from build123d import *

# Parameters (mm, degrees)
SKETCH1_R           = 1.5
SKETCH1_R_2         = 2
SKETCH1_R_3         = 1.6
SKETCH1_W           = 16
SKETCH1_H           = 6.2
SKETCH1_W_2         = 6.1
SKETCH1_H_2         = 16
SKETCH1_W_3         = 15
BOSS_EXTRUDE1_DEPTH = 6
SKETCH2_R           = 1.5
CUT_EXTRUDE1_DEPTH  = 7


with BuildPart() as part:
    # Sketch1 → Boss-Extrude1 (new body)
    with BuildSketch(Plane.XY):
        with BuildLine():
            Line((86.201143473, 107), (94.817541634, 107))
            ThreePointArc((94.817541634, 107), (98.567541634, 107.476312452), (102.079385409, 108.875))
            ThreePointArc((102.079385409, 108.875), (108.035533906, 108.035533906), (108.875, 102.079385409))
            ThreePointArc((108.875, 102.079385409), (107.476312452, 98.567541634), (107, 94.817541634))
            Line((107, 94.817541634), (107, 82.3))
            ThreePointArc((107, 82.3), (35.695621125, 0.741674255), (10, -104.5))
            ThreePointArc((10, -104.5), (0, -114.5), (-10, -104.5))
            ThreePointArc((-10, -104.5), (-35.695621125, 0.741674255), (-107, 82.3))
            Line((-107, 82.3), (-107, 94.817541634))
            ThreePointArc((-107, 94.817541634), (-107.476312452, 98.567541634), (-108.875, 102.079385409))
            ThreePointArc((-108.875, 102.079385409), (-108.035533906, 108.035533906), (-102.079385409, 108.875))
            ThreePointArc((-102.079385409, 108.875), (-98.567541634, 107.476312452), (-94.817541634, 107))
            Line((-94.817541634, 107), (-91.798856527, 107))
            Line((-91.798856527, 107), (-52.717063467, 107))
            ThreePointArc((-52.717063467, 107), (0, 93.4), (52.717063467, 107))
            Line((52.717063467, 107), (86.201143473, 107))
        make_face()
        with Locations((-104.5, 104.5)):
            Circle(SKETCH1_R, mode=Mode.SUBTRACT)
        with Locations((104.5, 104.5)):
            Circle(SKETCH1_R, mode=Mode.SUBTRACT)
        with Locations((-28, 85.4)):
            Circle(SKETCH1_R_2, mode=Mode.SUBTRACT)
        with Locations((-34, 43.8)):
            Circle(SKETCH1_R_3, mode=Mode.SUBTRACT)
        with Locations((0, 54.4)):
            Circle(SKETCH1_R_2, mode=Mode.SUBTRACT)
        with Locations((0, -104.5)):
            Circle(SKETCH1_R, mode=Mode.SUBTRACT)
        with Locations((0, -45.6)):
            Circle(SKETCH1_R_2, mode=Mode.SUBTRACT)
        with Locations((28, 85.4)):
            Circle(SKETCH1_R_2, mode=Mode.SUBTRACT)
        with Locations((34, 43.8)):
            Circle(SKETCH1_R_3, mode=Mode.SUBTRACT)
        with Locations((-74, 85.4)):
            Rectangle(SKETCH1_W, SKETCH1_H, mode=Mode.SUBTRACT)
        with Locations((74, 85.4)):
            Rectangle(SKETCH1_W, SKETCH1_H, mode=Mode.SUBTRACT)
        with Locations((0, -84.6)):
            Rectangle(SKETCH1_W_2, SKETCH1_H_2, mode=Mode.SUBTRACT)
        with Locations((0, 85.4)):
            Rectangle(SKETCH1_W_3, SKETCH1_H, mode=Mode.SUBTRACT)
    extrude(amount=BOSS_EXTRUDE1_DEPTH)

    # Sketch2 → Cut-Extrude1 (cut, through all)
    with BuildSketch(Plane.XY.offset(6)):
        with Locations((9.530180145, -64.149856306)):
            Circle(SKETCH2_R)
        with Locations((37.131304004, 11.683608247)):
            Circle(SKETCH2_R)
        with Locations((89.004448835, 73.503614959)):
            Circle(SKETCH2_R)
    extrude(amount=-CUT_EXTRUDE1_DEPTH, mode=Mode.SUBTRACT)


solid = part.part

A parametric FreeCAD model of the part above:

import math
import FreeCAD as App
import Part
import Sketcher

V = App.Vector

doc = App.newDocument("Part")
params = doc.addObject("Spreadsheet::Sheet", "Params")
for row, (alias, value) in enumerate([
    ("sketch1_diameter", "3 mm"),
    ("sketch1_diameter2", "4 mm"),
    ("sketch1_radius", "15 mm"),
    ("sketch1_radius2", "5 mm"),
    ("sketch1_radius3", "10 mm"),
    ("pad1_length", "6 mm"),
    ("sketch2_diameter", "3 mm"),
], start=1):
    params.set(f"A{row}", alias)
    params.set(f"B{row}", "=" + value)
    params.setAlias(f"B{row}", alias)

body = doc.addObject("PartDesign::Body", "Body")

sketch1 = body.newObject("Sketcher::SketchObject", "Sketch")
sketch1.AttachmentSupport = (doc.getObject("XY_Plane"), [""])
sketch1.MapMode = "FlatFace"
sketch1.addGeometry(Part.ArcOfCircle(Part.Circle(V(94.817542, 122, 0), V(0, 0, 1), 15), math.radians(-90), math.radians(-61.044976)), False)
sketch1.addGeometry(Part.LineSegment(V(94.817542, 107, 0), V(52.717063, 107, 0)), False)
sketch1.addGeometry(Part.ArcOfCircle(Part.Circle(V(0, 202.372382, 0), V(0, 0, 1), 108.972382), math.radians(-118.931614), math.radians(-61.068386)), False)
sketch1.addGeometry(Part.LineSegment(V(-52.717063, 107, 0), V(-94.817542, 107, 0)), False)
sketch1.addGeometry(Part.ArcOfCircle(Part.Circle(V(-94.817542, 122, 0), V(0, 0, 1), 15), math.radians(-118.955024), math.radians(-90)), False)
sketch1.addGeometry(Part.ArcOfCircle(Part.Circle(V(-104.5, 104.5, 0), V(0, 0, 1), 5), math.radians(61.044976), math.radians(208.955024)), False)
sketch1.addGeometry(Part.ArcOfCircle(Part.Circle(V(-122, 94.817542, 0), V(0, 0, 1), 15), math.radians(0), math.radians(28.955024)), False)
sketch1.addGeometry(Part.LineSegment(V(-107, 94.817542, 0), V(-107, 82.3, 0)), False)
sketch1.addGeometry(Part.ArcOfCircle(Part.Circle(V(-238.367216, -104.5, 0), V(0, 0, 1), 228.367216), math.radians(0), math.radians(54.883173)), False)
sketch1.addGeometry(Part.ArcOfCircle(Part.Circle(V(0, -104.5, 0), V(0, 0, 1), 10), math.radians(180), math.radians(360)), False)
sketch1.addGeometry(Part.ArcOfCircle(Part.Circle(V(238.367216, -104.5, 0), V(0, 0, 1), 228.367216), math.radians(125.116827), math.radians(180)), False)
sketch1.addGeometry(Part.LineSegment(V(107, 82.3, 0), V(107, 94.817542, 0)), False)
sketch1.addGeometry(Part.ArcOfCircle(Part.Circle(V(122, 94.817542, 0), V(0, 0, 1), 15), math.radians(151.044976), math.radians(180)), False)
sketch1.addGeometry(Part.ArcOfCircle(Part.Circle(V(104.5, 104.5, 0), V(0, 0, 1), 5), math.radians(-28.955024), math.radians(118.955024)), False)
sketch1.addGeometry(Part.Circle(V(0, -104.5, 0), V(0, 0, 1), 1.5), False)
sketch1.addGeometry(Part.LineSegment(V(-3.05, -92.6, 0), V(-3.05, -76.6, 0)), False)
sketch1.addGeometry(Part.LineSegment(V(-3.05, -76.6, 0), V(3.05, -76.6, 0)), False)
sketch1.addGeometry(Part.LineSegment(V(3.05, -76.6, 0), V(3.05, -92.6, 0)), False)
sketch1.addGeometry(Part.LineSegment(V(3.05, -92.6, 0), V(-3.05, -92.6, 0)), False)
sketch1.addGeometry(Part.Circle(V(0, -45.6, 0), V(0, 0, 1), 2), False)
sketch1.addGeometry(Part.Circle(V(34, 43.8, 0), V(0, 0, 1), 1.6), False)
sketch1.addGeometry(Part.Circle(V(104.5, 104.5, 0), V(0, 0, 1), 1.5), False)
sketch1.addGeometry(Part.LineSegment(V(66, 82.3, 0), V(66, 88.5, 0)), False)
sketch1.addGeometry(Part.LineSegment(V(66, 88.5, 0), V(82, 88.5, 0)), False)
sketch1.addGeometry(Part.LineSegment(V(82, 88.5, 0), V(82, 82.3, 0)), False)
sketch1.addGeometry(Part.LineSegment(V(82, 82.3, 0), V(66, 82.3, 0)), False)
sketch1.addGeometry(Part.Circle(V(28, 85.4, 0), V(0, 0, 1), 2), False)
sketch1.addGeometry(Part.Circle(V(-34, 43.8, 0), V(0, 0, 1), 1.6), False)
sketch1.addGeometry(Part.Circle(V(0, 54.4, 0), V(0, 0, 1), 2), False)
sketch1.addGeometry(Part.LineSegment(V(-7.5, 82.3, 0), V(-7.5, 88.5, 0)), False)
sketch1.addGeometry(Part.LineSegment(V(-7.5, 88.5, 0), V(7.5, 88.5, 0)), False)
sketch1.addGeometry(Part.LineSegment(V(7.5, 88.5, 0), V(7.5, 82.3, 0)), False)
sketch1.addGeometry(Part.LineSegment(V(7.5, 82.3, 0), V(-7.5, 82.3, 0)), False)
sketch1.addGeometry(Part.Circle(V(-28, 85.4, 0), V(0, 0, 1), 2), False)
sketch1.addGeometry(Part.LineSegment(V(-82, 82.3, 0), V(-82, 88.5, 0)), False)
sketch1.addGeometry(Part.LineSegment(V(-82, 88.5, 0), V(-66, 88.5, 0)), False)
sketch1.addGeometry(Part.LineSegment(V(-66, 88.5, 0), V(-66, 82.3, 0)), False)
sketch1.addGeometry(Part.LineSegment(V(-66, 82.3, 0), V(-82, 82.3, 0)), False)
sketch1.addGeometry(Part.Circle(V(-104.5, 104.5, 0), V(0, 0, 1), 1.5), False)
sketch1.addConstraint(Sketcher.Constraint("Tangent", 0, 1, 1, 1))
sketch1.addConstraint(Sketcher.Constraint("Coincident", 1, 2, 2, 2))
sketch1.addConstraint(Sketcher.Constraint("Coincident", 2, 1, 3, 1))
sketch1.addConstraint(Sketcher.Constraint("Tangent", 3, 2, 4, 2))
sketch1.addConstraint(Sketcher.Constraint("Tangent", 4, 1, 5, 1))
sketch1.addConstraint(Sketcher.Constraint("Tangent", 5, 2, 6, 2))
sketch1.addConstraint(Sketcher.Constraint("Tangent", 6, 1, 7, 1))
sketch1.addConstraint(Sketcher.Constraint("Coincident", 7, 2, 8, 2))
sketch1.addConstraint(Sketcher.Constraint("Tangent", 8, 1, 9, 1))
sketch1.addConstraint(Sketcher.Constraint("Tangent", 9, 2, 10, 2))
sketch1.addConstraint(Sketcher.Constraint("Coincident", 10, 1, 11, 1))
sketch1.addConstraint(Sketcher.Constraint("Tangent", 11, 2, 12, 2))
sketch1.addConstraint(Sketcher.Constraint("Tangent", 12, 1, 13, 1))
sketch1.addConstraint(Sketcher.Constraint("Tangent", 13, 2, 0, 2))
sketch1.addConstraint(Sketcher.Constraint("Coincident", 15, 2, 16, 1))
sketch1.addConstraint(Sketcher.Constraint("Coincident", 16, 2, 17, 1))
sketch1.addConstraint(Sketcher.Constraint("Coincident", 17, 2, 18, 1))
sketch1.addConstraint(Sketcher.Constraint("Coincident", 18, 2, 15, 1))
sketch1.addConstraint(Sketcher.Constraint("Coincident", 22, 2, 23, 1))
sketch1.addConstraint(Sketcher.Constraint("Coincident", 23, 2, 24, 1))
sketch1.addConstraint(Sketcher.Constraint("Coincident", 24, 2, 25, 1))
sketch1.addConstraint(Sketcher.Constraint("Coincident", 25, 2, 22, 1))
sketch1.addConstraint(Sketcher.Constraint("Coincident", 29, 2, 30, 1))
sketch1.addConstraint(Sketcher.Constraint("Coincident", 30, 2, 31, 1))
sketch1.addConstraint(Sketcher.Constraint("Coincident", 31, 2, 32, 1))
sketch1.addConstraint(Sketcher.Constraint("Coincident", 32, 2, 29, 1))
sketch1.addConstraint(Sketcher.Constraint("Coincident", 34, 2, 35, 1))
sketch1.addConstraint(Sketcher.Constraint("Coincident", 35, 2, 36, 1))
sketch1.addConstraint(Sketcher.Constraint("Coincident", 36, 2, 37, 1))
sketch1.addConstraint(Sketcher.Constraint("Coincident", 37, 2, 34, 1))
sketch1.addConstraint(Sketcher.Constraint("Horizontal", 1))
sketch1.addConstraint(Sketcher.Constraint("Horizontal", 3))
sketch1.addConstraint(Sketcher.Constraint("Vertical", 7))
sketch1.addConstraint(Sketcher.Constraint("Vertical", 11))
sketch1.addConstraint(Sketcher.Constraint("Vertical", 15))
sketch1.addConstraint(Sketcher.Constraint("Horizontal", 16))
sketch1.addConstraint(Sketcher.Constraint("Vertical", 17))
sketch1.addConstraint(Sketcher.Constraint("Horizontal", 18))
sketch1.addConstraint(Sketcher.Constraint("Vertical", 22))
sketch1.addConstraint(Sketcher.Constraint("Horizontal", 23))
sketch1.addConstraint(Sketcher.Constraint("Vertical", 24))
sketch1.addConstraint(Sketcher.Constraint("Horizontal", 25))
sketch1.addConstraint(Sketcher.Constraint("Vertical", 29))
sketch1.addConstraint(Sketcher.Constraint("Horizontal", 30))
sketch1.addConstraint(Sketcher.Constraint("Vertical", 31))
sketch1.addConstraint(Sketcher.Constraint("Horizontal", 32))
sketch1.addConstraint(Sketcher.Constraint("Vertical", 34))
sketch1.addConstraint(Sketcher.Constraint("Horizontal", 35))
sketch1.addConstraint(Sketcher.Constraint("Vertical", 36))
sketch1.addConstraint(Sketcher.Constraint("Horizontal", 37))
sketch1.addConstraint(Sketcher.Constraint("Coincident", 14, 3, 9, 3))
sketch1.addConstraint(Sketcher.Constraint("Coincident", 21, 3, 13, 3))
sketch1.addConstraint(Sketcher.Constraint("Coincident", 38, 3, 5, 3))
sketch1.addConstraint(Sketcher.Constraint("Equal", 0, 4))
sketch1.addConstraint(Sketcher.Constraint("Equal", 4, 6))
sketch1.addConstraint(Sketcher.Constraint("Equal", 8, 10))
sketch1.addConstraint(Sketcher.Constraint("Equal", 6, 12))
sketch1.addConstraint(Sketcher.Constraint("Equal", 5, 13))
sketch1.addConstraint(Sketcher.Constraint("Equal", 14, 21))
sketch1.addConstraint(Sketcher.Constraint("Equal", 19, 26))
sketch1.addConstraint(Sketcher.Constraint("Equal", 20, 27))
sketch1.addConstraint(Sketcher.Constraint("Equal", 26, 28))
sketch1.addConstraint(Sketcher.Constraint("Equal", 28, 33))
sketch1.addConstraint(Sketcher.Constraint("Equal", 21, 38))
sketch1.addConstraint(Sketcher.Constraint("Symmetric", 0, 3, 4, 3, -2))
sketch1.addConstraint(Sketcher.Constraint("Symmetric", 8, 3, 10, 3, -2))
sketch1.addConstraint(Sketcher.Constraint("Symmetric", 6, 3, 12, 3, -2))
sketch1.addConstraint(Sketcher.Constraint("Symmetric", 20, 3, 27, 3, -2))
sketch1.addConstraint(Sketcher.Constraint("Symmetric", 26, 3, 33, 3, -2))
sketch1.addConstraint(Sketcher.Constraint("Symmetric", 23, 2, 34, 2, -2))
sketch1.addConstraint(Sketcher.Constraint("Symmetric", 25, 2, 36, 2, -2))
sketch1.addConstraint(Sketcher.Constraint("PointOnObject", 2, 3, -2))
sketch1.addConstraint(Sketcher.Constraint("PointOnObject", 19, 3, -2))
sketch1.addConstraint(Sketcher.Constraint("PointOnObject", 28, 3, -2))
sketch1.addConstraint(Sketcher.Constraint("Horizontal", 8, 3, 9, 3))
sketch1.addConstraint(Sketcher.Constraint("Horizontal", 10, 1, 24, 2))
sketch1.addConstraint(Sketcher.Constraint("Horizontal", 23, 2, 29, 2))
sketch1.addConstraint(Sketcher.Constraint("Horizontal", 25, 2, 31, 2))
sketch1.addConstraint(Sketcher.Constraint("Equal", 37, 15))
sketch1.addConstraint(Sketcher.Constraint("Diameter", 14, 3.0))
sketch1.addConstraint(Sketcher.Constraint("Diameter", 19, 4.0))
sketch1.addConstraint(Sketcher.Constraint("Radius", 0, 15.0))
sketch1.addConstraint(Sketcher.Constraint("Radius", 5, 5.0))
sketch1.addConstraint(Sketcher.Constraint("Radius", 9, 10.0))
sketch1.addConstraint(Sketcher.Constraint("Diameter", 20, 3.2))
sketch1.addConstraint(Sketcher.Constraint("DistanceX", 23, 1, 23, 2, 16.0))
sketch1.addConstraint(Sketcher.Constraint("DistanceX", 30, 1, 30, 2, 15.0))
sketch1.addConstraint(Sketcher.Constraint("DistanceX", 16, 1, 16, 2, 6.1))
sketch1.addConstraint(Sketcher.Constraint("DistanceY", 22, 1, 22, 2, 6.2))
sketch1.addConstraint(Sketcher.Constraint("DistanceY", -1, 1, 0, 3, 122.0))
sketch1.addConstraint(Sketcher.Constraint("DistanceX", 6, 3, -1, 1, 122.0))
sketch1.addConstraint(Sketcher.Constraint("DistanceX", -1, 1, 20, 3, 34.0))
sketch1.addConstraint(Sketcher.Constraint("DistanceX", -1, 1, 26, 3, 28.0))
sketch1.addConstraint(Sketcher.Constraint("DistanceX", -1, 1, 22, 2, 66.0))
sketch1.addConstraint(Sketcher.Constraint("DistanceY", 8, 3, 5, 3, 209.0))
sketch1.addConstraint(Sketcher.Constraint("DistanceX", 5, 3, 13, 3, 209.0))
sketch1.addConstraint(Sketcher.Constraint("DistanceY", 28, 3, 26, 3, 31.0))
sketch1.addConstraint(Sketcher.Constraint("DistanceY", 19, 3, 28, 3, 100.0))
sketch1.addConstraint(Sketcher.Constraint("DistanceY", 15, 2, 19, 3, 31.0))
sketch1.addConstraint(Sketcher.Constraint("DistanceY", 23, 2, 13, 3, 16.0))
sketch1.addConstraint(Sketcher.Constraint("DistanceY", -1, 1, 5, 3, 104.5))
sketch1.addConstraint(Sketcher.Constraint("DistanceY", 19, 3, -1, 1, 45.6))
sketch1.addConstraint(Sketcher.Constraint("DistanceY", -1, 1, 20, 3, 43.8))
sketch1.addConstraint(Sketcher.Constraint("DistanceX", 29, 2, -1, 1, 7.5))
sketch1.addConstraint(Sketcher.Constraint("DistanceX", 15, 2, -1, 1, 3.05))
sketch1.addConstraint(Sketcher.Constraint("Radius", 2, 108.972382))
sketch1.addConstraint(Sketcher.Constraint("DistanceX", 1, 2, 1, 1, 42.100478))
sketch1.setExpression("Constraints[79]", "Params.sketch1_diameter")
sketch1.setExpression("Constraints[80]", "Params.sketch1_diameter2")
sketch1.setExpression("Constraints[81]", "Params.sketch1_radius")
sketch1.setExpression("Constraints[82]", "Params.sketch1_radius2")
sketch1.setExpression("Constraints[83]", "Params.sketch1_radius3")
pad1 = body.newObject("PartDesign::Pad", "Pad")
pad1.Profile = sketch1
pad1.setExpression("Length", "Params.pad1_length")

sketch2 = body.newObject("Sketcher::SketchObject", "Sketch001")
sketch2.AttachmentSupport = (doc.getObject("XY_Plane"), [""])
sketch2.MapMode = "FlatFace"
sketch2.AttachmentOffset = App.Placement(V(0, 0, 6), App.Rotation())
sketch2.addGeometry(Part.Circle(V(9.53018, -64.149856, 0), V(0, 0, 1), 1.5), False)
sketch2.addGeometry(Part.Circle(V(37.131304, 11.683608, 0), V(0, 0, 1), 1.5), False)
sketch2.addGeometry(Part.Circle(V(89.004449, 73.503615, 0), V(0, 0, 1), 1.5), False)
sketch2.addConstraint(Sketcher.Constraint("Equal", 0, 1))
sketch2.addConstraint(Sketcher.Constraint("Equal", 1, 2))
sketch2.addConstraint(Sketcher.Constraint("Diameter", 0, 3.0))
sketch2.addConstraint(Sketcher.Constraint("DistanceX", -1, 1, 0, 3, 9.53018))
sketch2.addConstraint(Sketcher.Constraint("DistanceY", -1, 1, 1, 3, 11.683608))
sketch2.addConstraint(Sketcher.Constraint("DistanceX", -1, 1, 2, 3, 89.004449))
sketch2.addConstraint(Sketcher.Constraint("DistanceY", 0, 3, 2, 3, 137.653471))
sketch2.addConstraint(Sketcher.Constraint("DistanceY", 0, 3, -1, 1, 64.149856))
sketch2.addConstraint(Sketcher.Constraint("DistanceX", -1, 1, 1, 3, 37.131304))
sketch2.setExpression("Constraints[2]", "Params.sketch2_diameter")
pocket1 = body.newObject("PartDesign::Pocket", "Pocket")
pocket1.Profile = sketch2
pocket1.Type = "ThroughAll"

doc.recompute()
